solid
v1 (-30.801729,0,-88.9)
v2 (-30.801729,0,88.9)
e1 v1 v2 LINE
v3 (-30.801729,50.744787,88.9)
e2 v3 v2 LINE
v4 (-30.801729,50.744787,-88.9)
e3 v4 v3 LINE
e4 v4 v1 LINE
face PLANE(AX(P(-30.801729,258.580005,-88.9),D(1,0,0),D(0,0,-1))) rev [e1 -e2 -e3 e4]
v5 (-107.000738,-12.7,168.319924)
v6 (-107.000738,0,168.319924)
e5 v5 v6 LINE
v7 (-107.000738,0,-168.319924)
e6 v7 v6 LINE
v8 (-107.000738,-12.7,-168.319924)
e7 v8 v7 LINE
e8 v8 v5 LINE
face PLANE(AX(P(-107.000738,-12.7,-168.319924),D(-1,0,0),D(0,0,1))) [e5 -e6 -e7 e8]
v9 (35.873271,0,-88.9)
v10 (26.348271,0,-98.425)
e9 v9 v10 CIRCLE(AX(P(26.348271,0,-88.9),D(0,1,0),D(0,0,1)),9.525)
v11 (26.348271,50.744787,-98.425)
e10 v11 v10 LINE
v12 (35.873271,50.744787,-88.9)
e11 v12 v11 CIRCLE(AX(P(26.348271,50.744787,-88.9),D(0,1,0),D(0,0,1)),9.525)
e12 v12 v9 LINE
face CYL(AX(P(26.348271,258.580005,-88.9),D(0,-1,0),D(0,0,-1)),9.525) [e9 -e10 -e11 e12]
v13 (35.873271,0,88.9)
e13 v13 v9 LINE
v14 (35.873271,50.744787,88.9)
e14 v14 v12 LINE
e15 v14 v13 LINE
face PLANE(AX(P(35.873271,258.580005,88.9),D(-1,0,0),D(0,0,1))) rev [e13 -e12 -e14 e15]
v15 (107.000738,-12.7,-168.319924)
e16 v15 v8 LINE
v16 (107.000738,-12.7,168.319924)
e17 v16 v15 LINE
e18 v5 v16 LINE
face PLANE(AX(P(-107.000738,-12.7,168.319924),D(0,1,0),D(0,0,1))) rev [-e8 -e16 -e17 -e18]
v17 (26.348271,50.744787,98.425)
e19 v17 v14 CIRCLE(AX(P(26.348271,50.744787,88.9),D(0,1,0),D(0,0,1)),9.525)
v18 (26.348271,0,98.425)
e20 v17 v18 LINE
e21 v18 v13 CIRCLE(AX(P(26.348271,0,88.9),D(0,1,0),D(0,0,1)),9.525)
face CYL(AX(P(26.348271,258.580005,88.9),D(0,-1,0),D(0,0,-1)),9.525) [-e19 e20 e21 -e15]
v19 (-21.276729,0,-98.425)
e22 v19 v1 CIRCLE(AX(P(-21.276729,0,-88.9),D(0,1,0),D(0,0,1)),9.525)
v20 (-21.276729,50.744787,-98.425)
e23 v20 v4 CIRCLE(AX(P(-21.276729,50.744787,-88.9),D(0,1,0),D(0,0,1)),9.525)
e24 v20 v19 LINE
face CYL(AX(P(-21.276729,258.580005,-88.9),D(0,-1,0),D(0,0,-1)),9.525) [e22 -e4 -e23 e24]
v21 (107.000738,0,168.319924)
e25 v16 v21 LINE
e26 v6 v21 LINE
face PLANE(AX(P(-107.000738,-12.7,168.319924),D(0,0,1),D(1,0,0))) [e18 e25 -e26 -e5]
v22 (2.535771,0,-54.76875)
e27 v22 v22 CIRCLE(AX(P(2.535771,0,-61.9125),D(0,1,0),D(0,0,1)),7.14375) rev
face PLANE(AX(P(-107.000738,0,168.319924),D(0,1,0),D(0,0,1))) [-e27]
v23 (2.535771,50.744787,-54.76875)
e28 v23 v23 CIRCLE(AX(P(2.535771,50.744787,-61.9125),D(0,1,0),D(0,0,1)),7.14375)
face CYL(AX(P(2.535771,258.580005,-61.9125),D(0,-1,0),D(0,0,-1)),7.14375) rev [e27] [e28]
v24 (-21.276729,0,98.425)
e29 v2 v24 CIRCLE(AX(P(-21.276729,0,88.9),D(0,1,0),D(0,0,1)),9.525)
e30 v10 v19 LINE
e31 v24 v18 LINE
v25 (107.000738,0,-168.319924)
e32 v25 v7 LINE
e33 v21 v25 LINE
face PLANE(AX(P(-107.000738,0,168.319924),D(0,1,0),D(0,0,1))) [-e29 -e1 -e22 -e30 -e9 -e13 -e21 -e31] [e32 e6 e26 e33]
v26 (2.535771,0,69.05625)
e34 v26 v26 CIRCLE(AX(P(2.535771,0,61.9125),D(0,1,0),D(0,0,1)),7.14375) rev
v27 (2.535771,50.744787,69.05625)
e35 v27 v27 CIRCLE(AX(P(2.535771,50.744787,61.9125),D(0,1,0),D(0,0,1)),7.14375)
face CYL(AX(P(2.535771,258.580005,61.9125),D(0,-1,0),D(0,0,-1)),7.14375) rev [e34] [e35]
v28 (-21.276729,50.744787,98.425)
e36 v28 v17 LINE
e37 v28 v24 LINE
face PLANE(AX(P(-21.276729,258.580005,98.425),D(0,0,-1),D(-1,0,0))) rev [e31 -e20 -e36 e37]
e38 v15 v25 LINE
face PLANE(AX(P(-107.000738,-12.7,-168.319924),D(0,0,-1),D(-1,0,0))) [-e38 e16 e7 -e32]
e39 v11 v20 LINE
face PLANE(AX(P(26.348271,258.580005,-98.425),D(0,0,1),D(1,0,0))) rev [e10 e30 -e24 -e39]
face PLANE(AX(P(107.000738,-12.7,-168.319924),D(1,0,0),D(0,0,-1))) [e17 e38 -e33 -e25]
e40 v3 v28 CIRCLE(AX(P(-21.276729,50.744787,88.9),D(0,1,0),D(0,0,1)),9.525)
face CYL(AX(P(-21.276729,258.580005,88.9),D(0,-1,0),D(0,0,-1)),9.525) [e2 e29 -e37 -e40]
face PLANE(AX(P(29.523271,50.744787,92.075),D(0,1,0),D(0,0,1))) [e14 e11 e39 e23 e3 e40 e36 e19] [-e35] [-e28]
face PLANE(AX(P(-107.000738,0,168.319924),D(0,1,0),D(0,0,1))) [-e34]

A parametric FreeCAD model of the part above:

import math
import FreeCAD as App
import Part
import Sketcher
from FreeCAD import Vector
Q = App.Units.Quantity

doc = App.newDocument("Part")
body = doc.addObject("PartDesign::Body", "Body")

sketch1 = doc.addObject("Sketcher::SketchObject", "Sketch")
body.addObject(sketch1)
sketch1.AttachmentSupport = (doc.XZ_Plane, [""])
sketch1.MapMode = "FlatFace"
sketch1.addGeometry([
    Part.LineSegment(Vector(-107, -168, 0), Vector(-107, 168, 0)),
    Part.LineSegment(Vector(-107, 168, 0), Vector(107, 168, 0)),
    Part.LineSegment(Vector(107, 168, 0), Vector(107, -168, 0)),
    Part.LineSegment(Vector(107, -168, 0), Vector(-107, -168, 0)),
], False)
sketch1.addConstraint([
    Sketcher.Constraint("Coincident", 0, 2, 1, 1),
    Sketcher.Constraint("Coincident", 1, 2, 2, 1),
    Sketcher.Constraint("Coincident", 2, 2, 3, 1),
    Sketcher.Constraint("Coincident", 3, 2, 0, 1),
    Sketcher.Constraint("Vertical", 0),
    Sketcher.Constraint("Horizontal", 1),
    Sketcher.Constraint("Vertical", 2),
    Sketcher.Constraint("Horizontal", 3),
    Sketcher.Constraint("Symmetric", 0, 2, 2, 2, -1, 1),
    Sketcher.Constraint("DistanceX", 1, 1, 1, 2, Q("214.001477 mm")),
    Sketcher.Constraint("DistanceY", 0, 1, 0, 2, Q("336.639848 mm")),
])
pad1 = doc.addObject("PartDesign::Pad", "Pad")
body.addObject(pad1)
pad1.Profile = sketch1
pad1.Length = Q("0.5 in")

sketch2 = doc.addObject("Sketcher::SketchObject", "Sketch001")
body.addObject(sketch2)
sketch2.AttachmentSupport = (doc.XZ_Plane, [""])
sketch2.MapMode = "FlatFace"
sketch2.addGeometry([
    Part.LineSegment(Vector(36, 89, 0), Vector(36, -89, 0)),
    Part.ArcOfCircle(Part.Circle(Vector(26, -89, 0), Vector(0, 0, 1), 10), math.radians(-90), math.radians(0)),
    Part.LineSegment(Vector(26, -98, 0), Vector(-21, -98, 0)),
    Part.ArcOfCircle(Part.Circle(Vector(-21, -89, 0), Vector(0, 0, 1), 10), math.radians(180), math.radians(270)),
    Part.LineSegment(Vector(-31, -89, 0), Vector(-31, 89, 0)),
    Part.ArcOfCircle(Part.Circle(Vector(-21, 89, 0), Vector(0, 0, 1), 10), math.radians(90), math.radians(180)),
    Part.LineSegment(Vector(-21, 98, 0), Vector(26, 98, 0)),
    Part.ArcOfCircle(Part.Circle(Vector(26, 89, 0), Vector(0, 0, 1), 10), math.radians(0), math.radians(90)),
    Part.Circle(Vector(3, -62, 0), Vector(0, 0, 1), 7),
    Part.Circle(Vector(3, 62, 0), Vector(0, 0, 1), 7),
], False)
sketch2.addConstraint([
    Sketcher.Constraint("Tangent", 0, 2, 1, 2),
    Sketcher.Constraint("Tangent", 1, 1, 2, 1),
    Sketcher.Constraint("Tangent", 2, 2, 3, 2),
    Sketcher.Constraint("Tangent", 3, 1, 4, 1),
    Sketcher.Constraint("Tangent", 4, 2, 5, 2),
    Sketcher.Constraint("Tangent", 5, 1, 6, 1),
    Sketcher.Constraint("Tangent", 6, 2, 7, 2),
    Sketcher.Constraint("Tangent", 7, 1, 0, 1),
    Sketcher.Constraint("Vertical", 0),
    Sketcher.Constraint("Horizontal", 2),
    Sketcher.Constraint("Vertical", 4),
    Sketcher.Constraint("Horizontal", 6),
    Sketcher.Constraint("Equal", 1, 3),
    Sketcher.Constraint("Equal", 3, 5),
    Sketcher.Constraint("Equal", 5, 7),
    Sketcher.Constraint("Equal", 8, 9),
    Sketcher.Constraint("Symmetric", 8, 3, 9, 3, -1),
    Sketcher.Constraint("DistanceY", 0, 2, 0, 1, Q("7 in")),
    Sketcher.Constraint("Diameter", 8, Q("0.5625 in")),
    Sketcher.Constraint("Radius", 1, Q("0.375 in")),
    Sketcher.Constraint("DistanceY", 1, 3, -1, 1, Q("3.5 in")),
    Sketcher.Constraint("DistanceX", 2, 2, 2, 1, Q("1.875 in")),
    Sketcher.Constraint("DistanceY", 8, 3, -1, 1, Q("2.4375 in")),
    Sketcher.Constraint("DistanceX", 8, 3, 1, 3, Q("0.9375 in")),
    Sketcher.Constraint("DistanceX", -1, 1, 1, 3, Q("26.348271 mm")),
])
pad2 = doc.addObject("PartDesign::Pad", "Pad001")
body.addObject(pad2)
pad2.Profile = sketch2
pad2.Length = 50.744787
pad2.Reversed = True

doc.recompute()
